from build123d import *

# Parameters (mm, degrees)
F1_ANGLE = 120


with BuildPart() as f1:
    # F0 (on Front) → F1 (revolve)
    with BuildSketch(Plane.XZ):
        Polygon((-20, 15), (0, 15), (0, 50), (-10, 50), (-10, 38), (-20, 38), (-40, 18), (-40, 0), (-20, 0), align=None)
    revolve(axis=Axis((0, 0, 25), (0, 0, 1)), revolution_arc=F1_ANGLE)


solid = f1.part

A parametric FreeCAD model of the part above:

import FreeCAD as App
import Part
import Sketcher

V = App.Vector
Q = App.Units.Quantity


def add_polygon(sketch, points):
    """Adds a closed chain of lines whose ends are joined by coincident constraints."""
    first, n = sketch.GeometryCount, len(points)
    for a, b in zip(points, points[1:] + points[:1]):
        sketch.addGeometry(Part.LineSegment(App.Vector(*a, 0), App.Vector(*b, 0)), False)
    for i in range(n):
        sketch.addConstraint(Sketcher.Constraint("Coincident", first + i, 2, first + (i + 1) % n, 1))

doc = App.newDocument("Part")
body = doc.addObject("PartDesign::Body", "Body")

sketch1 = body.newObject("Sketcher::SketchObject", "Sketch")
sketch1.AttachmentSupport = (doc.getObject("XZ_Plane"), [""])
sketch1.MapMode = "FlatFace"
add_polygon(sketch1, [(-20, 15), (0, 15), (0, 50), (-10, 50), (-10, 38), (-20, 38), (-40, 18), (-40, 0), (-20, 0)])
sketch1.addConstraint([
    Sketcher.Constraint("Horizontal", 0),
    Sketcher.Constraint("Vertical", 1),
    Sketcher.Constraint("Horizontal", 2),
    Sketcher.Constraint("Vertical", 3),
    Sketcher.Constraint("Horizontal", 4),
    Sketcher.Constraint("Vertical", 6),
    Sketcher.Constraint("Horizontal", 7),
    Sketcher.Constraint("Vertical", 8),
    Sketcher.Constraint("PointOnObject", 0, 2, -2),
    Sketcher.Constraint("PointOnObject", 6, 2, -1),
    Sketcher.Constraint("Vertical", 4, 2, 7, 2),
    Sketcher.Constraint("Equal", 2, 4),
    Sketcher.Constraint("Equal", 0, 7),
    Sketcher.Constraint("DistanceX", 0, 1, 0, 2, Q("20 mm")),
    Sketcher.Constraint("DistanceY", 1, 1, 1, 2, Q("35 mm")),
    Sketcher.Constraint("DistanceY", 3, 2, 3, 1, Q("12 mm")),
    Sketcher.Constraint("DistanceY", 6, 2, 6, 1, Q("18 mm")),
    Sketcher.Constraint("DistanceY", 8, 1, 8, 2, Q("15 mm")),
])
revolution = body.newObject("PartDesign::Revolution", "Revolution")
revolution.Profile = sketch1
revolution.ReferenceAxis = (sketch1, ["V_Axis"])
revolution.Angle = 120

doc.recompute()
